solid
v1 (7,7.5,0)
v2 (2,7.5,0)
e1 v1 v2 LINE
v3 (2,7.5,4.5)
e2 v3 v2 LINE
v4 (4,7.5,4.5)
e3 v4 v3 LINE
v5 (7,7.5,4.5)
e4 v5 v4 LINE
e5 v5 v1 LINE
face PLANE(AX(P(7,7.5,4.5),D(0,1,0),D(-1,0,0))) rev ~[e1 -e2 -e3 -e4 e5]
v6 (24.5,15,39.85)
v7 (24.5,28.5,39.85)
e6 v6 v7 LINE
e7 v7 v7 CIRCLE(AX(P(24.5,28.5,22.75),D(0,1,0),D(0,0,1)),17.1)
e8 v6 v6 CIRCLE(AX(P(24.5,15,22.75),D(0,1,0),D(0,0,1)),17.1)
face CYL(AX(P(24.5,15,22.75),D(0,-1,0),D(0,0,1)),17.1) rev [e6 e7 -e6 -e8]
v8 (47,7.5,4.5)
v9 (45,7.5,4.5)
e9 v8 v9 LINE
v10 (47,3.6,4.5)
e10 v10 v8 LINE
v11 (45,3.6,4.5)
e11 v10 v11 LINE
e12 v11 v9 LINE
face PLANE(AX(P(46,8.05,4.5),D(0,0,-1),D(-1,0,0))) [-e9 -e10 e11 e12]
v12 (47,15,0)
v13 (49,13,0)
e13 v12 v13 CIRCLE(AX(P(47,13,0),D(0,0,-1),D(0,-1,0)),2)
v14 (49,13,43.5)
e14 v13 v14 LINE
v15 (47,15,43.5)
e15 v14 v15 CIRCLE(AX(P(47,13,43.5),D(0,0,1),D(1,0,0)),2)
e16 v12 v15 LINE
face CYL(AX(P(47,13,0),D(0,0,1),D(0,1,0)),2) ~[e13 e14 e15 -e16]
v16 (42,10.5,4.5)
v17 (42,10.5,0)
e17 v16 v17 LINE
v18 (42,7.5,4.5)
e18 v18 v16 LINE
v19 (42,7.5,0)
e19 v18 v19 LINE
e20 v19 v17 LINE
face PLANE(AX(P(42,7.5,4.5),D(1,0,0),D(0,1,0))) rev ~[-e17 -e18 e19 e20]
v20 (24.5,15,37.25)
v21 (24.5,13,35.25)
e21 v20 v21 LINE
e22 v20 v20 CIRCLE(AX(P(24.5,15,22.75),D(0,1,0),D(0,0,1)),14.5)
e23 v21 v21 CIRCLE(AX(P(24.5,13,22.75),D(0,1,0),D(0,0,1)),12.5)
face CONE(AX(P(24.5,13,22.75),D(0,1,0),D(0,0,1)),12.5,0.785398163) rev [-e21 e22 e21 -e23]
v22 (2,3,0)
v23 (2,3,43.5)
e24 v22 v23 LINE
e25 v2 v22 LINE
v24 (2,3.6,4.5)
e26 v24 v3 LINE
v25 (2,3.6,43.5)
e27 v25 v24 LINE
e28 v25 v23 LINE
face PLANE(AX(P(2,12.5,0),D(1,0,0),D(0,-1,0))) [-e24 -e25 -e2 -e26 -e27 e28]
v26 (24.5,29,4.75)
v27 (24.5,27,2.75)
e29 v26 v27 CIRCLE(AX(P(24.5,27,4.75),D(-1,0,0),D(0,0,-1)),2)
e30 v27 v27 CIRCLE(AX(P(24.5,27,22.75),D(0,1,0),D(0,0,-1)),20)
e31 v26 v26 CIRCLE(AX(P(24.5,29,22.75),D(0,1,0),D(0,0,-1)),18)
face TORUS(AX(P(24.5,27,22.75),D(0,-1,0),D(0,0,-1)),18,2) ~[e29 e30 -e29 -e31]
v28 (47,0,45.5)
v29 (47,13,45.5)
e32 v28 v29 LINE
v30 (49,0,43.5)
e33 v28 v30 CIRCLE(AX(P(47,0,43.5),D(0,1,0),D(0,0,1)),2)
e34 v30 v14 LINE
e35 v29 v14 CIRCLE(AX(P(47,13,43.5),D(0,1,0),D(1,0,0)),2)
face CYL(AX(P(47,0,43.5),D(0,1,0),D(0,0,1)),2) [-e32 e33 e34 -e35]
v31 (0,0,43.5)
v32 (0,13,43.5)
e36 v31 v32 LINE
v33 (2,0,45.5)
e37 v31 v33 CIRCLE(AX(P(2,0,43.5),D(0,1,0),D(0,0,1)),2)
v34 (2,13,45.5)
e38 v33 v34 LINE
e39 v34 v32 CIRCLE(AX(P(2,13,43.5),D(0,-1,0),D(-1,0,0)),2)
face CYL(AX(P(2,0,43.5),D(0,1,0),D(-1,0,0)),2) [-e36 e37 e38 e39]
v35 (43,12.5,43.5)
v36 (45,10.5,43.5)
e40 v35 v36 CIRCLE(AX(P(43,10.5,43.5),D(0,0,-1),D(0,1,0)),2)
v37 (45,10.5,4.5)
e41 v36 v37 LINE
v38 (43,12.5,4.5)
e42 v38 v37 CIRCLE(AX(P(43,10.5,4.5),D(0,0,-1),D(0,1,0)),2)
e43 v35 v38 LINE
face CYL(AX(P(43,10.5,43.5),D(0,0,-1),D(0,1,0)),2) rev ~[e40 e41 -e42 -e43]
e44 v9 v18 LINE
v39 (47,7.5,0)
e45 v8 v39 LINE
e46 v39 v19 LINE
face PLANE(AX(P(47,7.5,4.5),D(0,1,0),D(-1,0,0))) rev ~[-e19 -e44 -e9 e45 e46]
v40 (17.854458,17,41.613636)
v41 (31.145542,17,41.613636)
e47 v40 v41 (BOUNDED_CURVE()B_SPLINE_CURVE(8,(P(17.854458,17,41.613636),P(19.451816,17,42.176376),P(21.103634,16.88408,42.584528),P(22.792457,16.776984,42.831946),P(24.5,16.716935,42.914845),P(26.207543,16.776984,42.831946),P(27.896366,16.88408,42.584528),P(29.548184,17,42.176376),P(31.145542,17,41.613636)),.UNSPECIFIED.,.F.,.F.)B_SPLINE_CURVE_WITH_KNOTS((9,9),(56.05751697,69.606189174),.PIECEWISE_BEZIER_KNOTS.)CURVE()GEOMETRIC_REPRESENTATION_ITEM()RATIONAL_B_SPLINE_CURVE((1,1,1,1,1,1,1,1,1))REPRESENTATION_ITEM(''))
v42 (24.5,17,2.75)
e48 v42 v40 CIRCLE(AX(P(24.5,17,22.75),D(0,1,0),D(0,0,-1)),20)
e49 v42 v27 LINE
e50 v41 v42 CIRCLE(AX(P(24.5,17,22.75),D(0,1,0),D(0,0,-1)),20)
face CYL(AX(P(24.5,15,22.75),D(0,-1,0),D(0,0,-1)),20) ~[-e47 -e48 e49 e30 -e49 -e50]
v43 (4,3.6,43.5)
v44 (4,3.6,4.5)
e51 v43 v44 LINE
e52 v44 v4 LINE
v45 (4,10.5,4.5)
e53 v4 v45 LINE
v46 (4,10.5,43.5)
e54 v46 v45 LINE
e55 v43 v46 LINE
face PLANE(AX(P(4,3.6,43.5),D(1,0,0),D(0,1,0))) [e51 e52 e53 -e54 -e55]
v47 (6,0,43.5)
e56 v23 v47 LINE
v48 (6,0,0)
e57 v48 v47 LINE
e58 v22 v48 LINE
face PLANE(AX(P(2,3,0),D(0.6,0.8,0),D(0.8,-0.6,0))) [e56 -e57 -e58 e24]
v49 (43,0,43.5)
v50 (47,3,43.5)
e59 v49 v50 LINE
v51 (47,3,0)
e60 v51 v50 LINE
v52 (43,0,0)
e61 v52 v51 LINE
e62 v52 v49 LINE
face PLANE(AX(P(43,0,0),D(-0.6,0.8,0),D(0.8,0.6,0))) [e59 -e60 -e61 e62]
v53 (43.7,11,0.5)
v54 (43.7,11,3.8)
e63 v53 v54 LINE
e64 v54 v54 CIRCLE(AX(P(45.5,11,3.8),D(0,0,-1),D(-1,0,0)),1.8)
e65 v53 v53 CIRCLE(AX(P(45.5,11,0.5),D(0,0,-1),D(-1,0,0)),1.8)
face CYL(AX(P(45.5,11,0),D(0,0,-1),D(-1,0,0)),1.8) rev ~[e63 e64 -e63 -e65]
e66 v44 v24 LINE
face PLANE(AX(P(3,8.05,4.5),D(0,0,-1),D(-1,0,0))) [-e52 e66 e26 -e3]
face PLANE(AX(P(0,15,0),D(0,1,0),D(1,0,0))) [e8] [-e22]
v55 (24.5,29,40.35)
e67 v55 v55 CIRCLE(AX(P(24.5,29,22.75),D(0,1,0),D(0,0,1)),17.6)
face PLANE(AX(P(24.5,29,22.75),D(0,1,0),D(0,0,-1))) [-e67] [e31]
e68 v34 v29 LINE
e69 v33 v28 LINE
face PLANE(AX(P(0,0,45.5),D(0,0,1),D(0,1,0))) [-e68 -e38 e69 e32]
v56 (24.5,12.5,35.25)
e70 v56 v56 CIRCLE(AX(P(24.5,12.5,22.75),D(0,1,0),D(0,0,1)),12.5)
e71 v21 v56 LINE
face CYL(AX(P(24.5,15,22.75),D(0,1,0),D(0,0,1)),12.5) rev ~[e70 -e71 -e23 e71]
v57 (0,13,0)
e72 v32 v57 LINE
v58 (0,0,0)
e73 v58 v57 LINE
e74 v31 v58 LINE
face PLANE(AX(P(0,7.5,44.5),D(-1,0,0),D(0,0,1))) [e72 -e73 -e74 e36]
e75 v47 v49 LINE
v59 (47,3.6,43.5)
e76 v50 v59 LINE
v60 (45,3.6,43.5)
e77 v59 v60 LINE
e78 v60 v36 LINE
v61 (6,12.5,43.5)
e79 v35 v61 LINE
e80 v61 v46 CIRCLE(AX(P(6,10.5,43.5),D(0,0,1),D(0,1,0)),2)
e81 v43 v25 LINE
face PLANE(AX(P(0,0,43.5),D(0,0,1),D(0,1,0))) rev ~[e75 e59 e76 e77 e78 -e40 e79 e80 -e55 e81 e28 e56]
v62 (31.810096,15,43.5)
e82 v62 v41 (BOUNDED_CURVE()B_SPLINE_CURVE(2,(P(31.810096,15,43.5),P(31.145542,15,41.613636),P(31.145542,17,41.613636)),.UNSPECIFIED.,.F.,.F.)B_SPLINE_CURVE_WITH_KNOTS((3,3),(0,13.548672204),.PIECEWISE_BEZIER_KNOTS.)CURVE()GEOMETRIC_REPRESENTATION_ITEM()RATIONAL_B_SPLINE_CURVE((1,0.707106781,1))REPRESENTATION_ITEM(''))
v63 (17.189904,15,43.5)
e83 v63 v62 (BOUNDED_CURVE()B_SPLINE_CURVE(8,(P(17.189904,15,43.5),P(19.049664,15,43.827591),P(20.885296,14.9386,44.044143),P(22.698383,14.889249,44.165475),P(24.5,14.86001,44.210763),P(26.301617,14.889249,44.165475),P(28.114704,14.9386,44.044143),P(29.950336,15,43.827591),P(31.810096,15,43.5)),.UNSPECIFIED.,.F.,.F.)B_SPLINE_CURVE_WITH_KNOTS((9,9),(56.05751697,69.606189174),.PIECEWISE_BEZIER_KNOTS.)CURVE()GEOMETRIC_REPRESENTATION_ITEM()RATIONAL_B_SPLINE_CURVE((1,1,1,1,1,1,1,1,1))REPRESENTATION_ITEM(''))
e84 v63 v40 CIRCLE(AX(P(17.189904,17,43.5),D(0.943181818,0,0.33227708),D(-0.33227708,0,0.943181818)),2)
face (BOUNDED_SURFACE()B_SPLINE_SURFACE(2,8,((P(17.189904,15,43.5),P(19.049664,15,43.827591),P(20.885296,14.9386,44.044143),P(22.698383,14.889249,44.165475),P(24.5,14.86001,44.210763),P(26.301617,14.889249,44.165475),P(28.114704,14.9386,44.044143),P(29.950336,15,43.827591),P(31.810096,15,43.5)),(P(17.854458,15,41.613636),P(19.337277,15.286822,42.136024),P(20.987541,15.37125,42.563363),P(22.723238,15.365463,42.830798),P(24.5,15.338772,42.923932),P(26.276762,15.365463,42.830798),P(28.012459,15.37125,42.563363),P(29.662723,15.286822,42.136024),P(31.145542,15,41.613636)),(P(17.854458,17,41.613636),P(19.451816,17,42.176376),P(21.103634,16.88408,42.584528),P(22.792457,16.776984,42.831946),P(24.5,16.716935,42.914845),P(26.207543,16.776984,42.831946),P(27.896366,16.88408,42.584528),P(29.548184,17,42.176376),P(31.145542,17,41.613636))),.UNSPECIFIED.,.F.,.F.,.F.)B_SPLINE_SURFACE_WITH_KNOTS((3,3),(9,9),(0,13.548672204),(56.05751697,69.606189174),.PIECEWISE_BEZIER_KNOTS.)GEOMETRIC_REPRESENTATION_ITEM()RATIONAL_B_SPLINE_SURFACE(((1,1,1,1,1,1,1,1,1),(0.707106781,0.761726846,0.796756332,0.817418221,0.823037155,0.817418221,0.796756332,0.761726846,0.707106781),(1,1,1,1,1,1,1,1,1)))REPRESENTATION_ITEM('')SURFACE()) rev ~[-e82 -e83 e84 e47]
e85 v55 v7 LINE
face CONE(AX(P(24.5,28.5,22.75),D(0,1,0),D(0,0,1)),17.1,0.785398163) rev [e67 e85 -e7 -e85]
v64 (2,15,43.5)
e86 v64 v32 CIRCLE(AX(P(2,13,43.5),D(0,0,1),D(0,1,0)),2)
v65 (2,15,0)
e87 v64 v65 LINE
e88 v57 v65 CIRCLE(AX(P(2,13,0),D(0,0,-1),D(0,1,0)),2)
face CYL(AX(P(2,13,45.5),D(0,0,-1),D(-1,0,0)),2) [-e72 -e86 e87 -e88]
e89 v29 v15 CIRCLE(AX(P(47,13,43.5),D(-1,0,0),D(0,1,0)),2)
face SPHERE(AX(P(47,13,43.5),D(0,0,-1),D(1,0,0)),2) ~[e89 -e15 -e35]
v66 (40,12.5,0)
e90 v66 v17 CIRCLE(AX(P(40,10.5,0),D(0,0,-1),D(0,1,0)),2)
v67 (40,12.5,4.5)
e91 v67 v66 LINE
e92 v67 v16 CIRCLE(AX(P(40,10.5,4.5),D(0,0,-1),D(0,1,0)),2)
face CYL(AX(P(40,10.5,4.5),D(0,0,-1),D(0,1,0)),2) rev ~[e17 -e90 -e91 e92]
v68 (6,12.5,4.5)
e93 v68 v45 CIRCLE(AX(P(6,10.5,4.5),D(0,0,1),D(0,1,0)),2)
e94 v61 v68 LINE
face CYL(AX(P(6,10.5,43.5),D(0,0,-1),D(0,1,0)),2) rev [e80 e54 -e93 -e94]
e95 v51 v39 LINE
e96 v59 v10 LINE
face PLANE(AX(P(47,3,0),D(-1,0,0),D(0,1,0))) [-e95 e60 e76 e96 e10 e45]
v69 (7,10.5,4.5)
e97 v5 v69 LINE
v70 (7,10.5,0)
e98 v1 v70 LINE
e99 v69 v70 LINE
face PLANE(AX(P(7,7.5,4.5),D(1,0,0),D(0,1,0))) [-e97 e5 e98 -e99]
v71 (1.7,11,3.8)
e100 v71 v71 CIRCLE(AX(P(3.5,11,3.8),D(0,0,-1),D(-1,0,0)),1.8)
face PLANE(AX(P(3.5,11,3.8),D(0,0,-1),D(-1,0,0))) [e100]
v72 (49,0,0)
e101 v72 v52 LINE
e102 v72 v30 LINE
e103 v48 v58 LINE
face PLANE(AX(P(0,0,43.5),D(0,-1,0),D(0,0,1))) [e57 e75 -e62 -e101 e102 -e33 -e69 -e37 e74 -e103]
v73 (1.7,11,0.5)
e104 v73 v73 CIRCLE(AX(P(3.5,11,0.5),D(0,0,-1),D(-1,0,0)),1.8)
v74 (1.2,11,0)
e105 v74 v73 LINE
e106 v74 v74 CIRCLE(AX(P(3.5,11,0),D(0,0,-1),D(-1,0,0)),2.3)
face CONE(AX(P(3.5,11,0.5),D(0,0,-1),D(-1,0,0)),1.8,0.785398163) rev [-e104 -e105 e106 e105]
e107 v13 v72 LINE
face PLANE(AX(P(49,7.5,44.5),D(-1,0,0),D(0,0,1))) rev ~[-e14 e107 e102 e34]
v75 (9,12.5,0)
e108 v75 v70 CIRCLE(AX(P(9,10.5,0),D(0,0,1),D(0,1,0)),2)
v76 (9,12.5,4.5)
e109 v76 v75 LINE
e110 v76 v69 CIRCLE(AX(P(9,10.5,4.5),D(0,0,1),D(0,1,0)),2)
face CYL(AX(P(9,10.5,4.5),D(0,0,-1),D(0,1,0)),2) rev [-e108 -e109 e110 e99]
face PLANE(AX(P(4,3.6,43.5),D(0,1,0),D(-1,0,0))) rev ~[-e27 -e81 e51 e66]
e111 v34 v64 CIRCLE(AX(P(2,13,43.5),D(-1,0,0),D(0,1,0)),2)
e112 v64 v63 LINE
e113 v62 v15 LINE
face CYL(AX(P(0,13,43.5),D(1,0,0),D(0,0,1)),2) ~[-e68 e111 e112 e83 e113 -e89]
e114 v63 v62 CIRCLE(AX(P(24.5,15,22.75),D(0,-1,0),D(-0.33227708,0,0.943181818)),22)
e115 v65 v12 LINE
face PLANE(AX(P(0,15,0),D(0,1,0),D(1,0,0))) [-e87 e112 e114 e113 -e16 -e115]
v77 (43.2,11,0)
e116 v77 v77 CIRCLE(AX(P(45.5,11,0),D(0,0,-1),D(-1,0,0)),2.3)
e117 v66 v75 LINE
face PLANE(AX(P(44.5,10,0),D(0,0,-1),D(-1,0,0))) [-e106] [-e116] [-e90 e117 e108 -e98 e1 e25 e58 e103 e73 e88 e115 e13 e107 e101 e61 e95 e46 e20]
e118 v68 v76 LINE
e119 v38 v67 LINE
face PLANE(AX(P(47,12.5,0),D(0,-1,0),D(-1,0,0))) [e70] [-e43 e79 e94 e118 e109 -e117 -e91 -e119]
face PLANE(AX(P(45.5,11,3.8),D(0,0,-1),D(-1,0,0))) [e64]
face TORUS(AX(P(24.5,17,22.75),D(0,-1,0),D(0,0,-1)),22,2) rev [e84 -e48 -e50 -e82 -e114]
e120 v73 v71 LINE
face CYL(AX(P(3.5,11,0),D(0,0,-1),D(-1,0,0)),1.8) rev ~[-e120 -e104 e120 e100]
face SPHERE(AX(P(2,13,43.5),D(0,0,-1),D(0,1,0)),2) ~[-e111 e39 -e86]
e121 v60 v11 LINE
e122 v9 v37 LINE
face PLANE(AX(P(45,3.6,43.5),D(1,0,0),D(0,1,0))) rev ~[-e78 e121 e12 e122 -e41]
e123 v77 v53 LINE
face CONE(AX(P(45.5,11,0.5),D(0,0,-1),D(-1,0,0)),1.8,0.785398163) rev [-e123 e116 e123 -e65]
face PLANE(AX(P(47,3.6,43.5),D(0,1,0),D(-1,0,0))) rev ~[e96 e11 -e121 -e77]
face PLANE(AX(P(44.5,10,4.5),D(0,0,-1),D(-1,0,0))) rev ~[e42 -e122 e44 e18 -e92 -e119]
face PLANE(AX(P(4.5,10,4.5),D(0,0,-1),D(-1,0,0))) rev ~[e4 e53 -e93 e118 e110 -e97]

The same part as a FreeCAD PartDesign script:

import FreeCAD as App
import Part
import Sketcher


def edges_at(feature, points):
    """Names of the edges that pass closest to the given points."""
    edges = feature.Shape.Edges
    near = lambda p: min(range(len(edges)), key=lambda i: edges[i].distToShape(Part.Vertex(*p))[0])
    return sorted({f"Edge{near(p) + 1}" for p in points})


def add_polygon(sketch, points):
    """Adds a closed chain of lines whose ends are joined by coincident constraints."""
    first, n = sketch.GeometryCount, len(points)
    for a, b in zip(points, points[1:] + points[:1]):
        sketch.addGeometry(Part.LineSegment(App.Vector(*a, 0), App.Vector(*b, 0)), False)
    for i in range(n):
        sketch.addConstraint(Sketcher.Constraint("Coincident", first + i, 2, first + (i + 1) % n, 1))

doc = App.newDocument("Part")
body = doc.addObject("PartDesign::Body", "Body")

sketch1 = body.newObject("Sketcher::SketchObject", "Sketch")
sketch1.AttachmentSupport = (doc.getObject("XY_Plane"), [""])
sketch1.MapMode = "FlatFace"
add_polygon(sketch1, [(0, 0), (6, 0), (2, 3), (2, 12), (47, 12), (47, 3), (43, 0), (49, 0), (49, 15), (0, 15)])
sketch1.addConstraint([
    Sketcher.Constraint("Horizontal", 0),
    Sketcher.Constraint("Vertical", 2),
    Sketcher.Constraint("Horizontal", 3),
    Sketcher.Constraint("Vertical", 4),
    Sketcher.Constraint("Horizontal", 6),
    Sketcher.Constraint("Vertical", 7),
    Sketcher.Constraint("Horizontal", 8),
    Sketcher.Constraint("Vertical", 9),
    Sketcher.Constraint("Coincident", 9, 2, -1, 1),
    Sketcher.Constraint("PointOnObject", 5, 2, -1),
    Sketcher.Constraint("Horizontal", 1, 2, 4, 2),
    Sketcher.Constraint("Equal", 0, 6),
    Sketcher.Constraint("Equal", 1, 5),
    Sketcher.Constraint("DistanceX", 0, 1, 0, 2, 6.0),
    Sketcher.Constraint("DistanceX", 3, 1, 3, 2, 45.0),
    Sketcher.Constraint("DistanceX", 8, 2, 8, 1, 49.0),
    Sketcher.Constraint("DistanceY", 7, 1, 7, 2, 15.0),
    Sketcher.Constraint("Distance", 1, 5.0),
    Sketcher.Constraint("DistanceY", 2, 1, 2, 2, 9.5),
])
pad1 = body.newObject("PartDesign::Pad", "Pad")
pad1.Profile = sketch1
pad1.Length = 43.5

sketch2 = body.newObject("Sketcher::SketchObject", "Sketch001")
sketch2.AttachmentSupport = (doc.getObject("YZ_Plane"), [""])
sketch2.MapMode = "FlatFace"
add_polygon(sketch2, [(15, 43.5), (0, 43.5), (0, 45.5), (15, 45.5)])
sketch2.addConstraint([
    Sketcher.Constraint("Horizontal", 0),
    Sketcher.Constraint("Vertical", 1),
    Sketcher.Constraint("Horizontal", 2),
    Sketcher.Constraint("Vertical", 3),
    Sketcher.Constraint("PointOnObject", 0, 2, -2),
    Sketcher.Constraint("DistanceX", 0, 2, 0, 1, 15.0),
    Sketcher.Constraint("DistanceY", 1, 1, 1, 2, 2.0),
    Sketcher.Constraint("DistanceY", -1, 1, 0, 2, 43.5),
])
pad2 = body.newObject("PartDesign::Pad", "Pad001")
pad2.Profile = sketch2
pad2.Length = 49

sketch3 = body.newObject("Sketcher::SketchObject", "Sketch002")
sketch3.AttachmentSupport = (doc.getObject("XY_Plane"), [""])
sketch3.MapMode = "FlatFace"
sketch3.AttachmentOffset = App.Placement(App.Vector(0, 0, 43.5), App.Rotation())
add_polygon(sketch3, [(47, 12.5), (47, 3.6), (45, 3.6), (45, 12.5)])
add_polygon(sketch3, [(4, 12.5), (4, 3.6), (2, 3.6), (2, 12.5)])
sketch3.addConstraint([
    Sketcher.Constraint("Vertical", 0),
    Sketcher.Constraint("Horizontal", 1),
    Sketcher.Constraint("Vertical", 2),
    Sketcher.Constraint("Horizontal", 3),
    Sketcher.Constraint("Vertical", 4),
    Sketcher.Constraint("Horizontal", 5),
    Sketcher.Constraint("Vertical", 6),
    Sketcher.Constraint("Horizontal", 7),
    Sketcher.Constraint("Horizontal", 1, 2, 4, 2),
    Sketcher.Constraint("Horizontal", 3, 2, 6, 2),
    Sketcher.Constraint("Equal", 3, 5),
    Sketcher.Constraint("DistanceX", 1, 2, 1, 1, 2.0),
    Sketcher.Constraint("DistanceY", 0, 2, 0, 1, 8.9),
    Sketcher.Constraint("DistanceX", -1, 1, 0, 2, 47.0),
    Sketcher.Constraint("DistanceX", -1, 1, 4, 2, 4.0),
    Sketcher.Constraint("DistanceY", -1, 1, 0, 2, 3.6),
])
pad3 = body.newObject("PartDesign::Pad", "Pad002")
pad3.Profile = sketch3
pad3.Length = 39
pad3.Reversed = True

sketch4 = body.newObject("Sketcher::SketchObject", "Sketch003")
sketch4.AttachmentSupport = (doc.getObject("XY_Plane"), [""])
sketch4.MapMode = "FlatFace"
sketch4.AttachmentOffset = App.Placement(App.Vector(0, 0, 4.5), App.Rotation())
add_polygon(sketch4, [(47, 12), (47, 8), (42, 8), (42, 12)])
add_polygon(sketch4, [(7, 12), (7, 8), (2, 8), (2, 12)])
sketch4.addConstraint([
    Sketcher.Constraint("Vertical", 0),
    Sketcher.Constraint("Horizontal", 1),
    Sketcher.Constraint("Vertical", 2),
    Sketcher.Constraint("Horizontal", 3),
    Sketcher.Constraint("Vertical", 4),
    Sketcher.Constraint("Horizontal", 5),
    Sketcher.Constraint("Vertical", 6),
    Sketcher.Constraint("Horizontal", 7),
    Sketcher.Constraint("Horizontal", 1, 2, 4, 2),
    Sketcher.Constraint("Horizontal", 3, 2, 6, 2),
    Sketcher.Constraint("Equal", 3, 5),
    Sketcher.Constraint("Equal", 7, 0),
    Sketcher.Constraint("DistanceX", 1, 2, 1, 1, 5.0),
    Sketcher.Constraint("DistanceX", -1, 1, 0, 2, 47.0),
    Sketcher.Constraint("DistanceX", -1, 1, 4, 2, 7.0),
    Sketcher.Constraint("DistanceY", -1, 1, 0, 2, 7.5),
])
pad4 = body.newObject("PartDesign::Pad", "Pad003")
pad4.Profile = sketch4
pad4.Length = 4.5
pad4.Reversed = True
doc.recompute()

fillet = body.newObject("PartDesign::Fillet", "Fillet")
fillet.Base = (pad4, edges_at(pad4, [(45, 12.5, 24), (4, 12.5, 24)]))
fillet.Radius = 2
doc.recompute()

fillet2 = body.newObject("PartDesign::Fillet", "Fillet001")
fillet2.Base = (fillet, edges_at(fillet, [(42, 12.5, 2.25), (7, 12.5, 2.25)]))
fillet2.Radius = 2
doc.recompute()

fillet3 = body.newObject("PartDesign::Fillet", "Fillet002")
fillet3.Base = (fillet2, edges_at(fillet2, [
    (0, 15, 22.75),
    (49, 15, 22.75),
    (49, 7.5, 45.5),
    (24.5, 15, 45.5),
    (0, 7.5, 45.5),
]))
fillet3.Radius = 2

sketch5 = body.newObject("Sketcher::SketchObject", "Sketch004")
sketch5.AttachmentSupport = (doc.getObject("XZ_Plane"), [""])
sketch5.MapMode = "FlatFace"
sketch5.AttachmentOffset = App.Placement(App.Vector(0, 0, -15), App.Rotation())
sketch5.addGeometry(Part.Circle(App.Vector(24, 23, 0), App.Vector(0, 0, 1), 12), False)
sketch5.addConstraint([
    Sketcher.Constraint("Diameter", 0, 25.0),
    Sketcher.Constraint("DistanceX", -1, 1, 0, 3, 24.5),
    Sketcher.Constraint("DistanceY", -1, 1, 0, 3, 22.75),
])
pocket1 = body.newObject("PartDesign::Pocket", "Pocket")
pocket1.Profile = sketch5
pocket1.Length = 2.5
pocket1.Reversed = True
doc.recompute()

chamfer = body.newObject("PartDesign::Chamfer", "Chamfer")
chamfer.Base = (pocket1, edges_at(pocket1, [(24.5, 15, 10.25)]))
chamfer.Size = 2

sketch6 = body.newObject("Sketcher::SketchObject", "Sketch005")
sketch6.AttachmentSupport = (doc.getObject("XY_Plane"), [""])
sketch6.MapMode = "FlatFace"
sketch6.addGeometry([
    Part.Circle(App.Vector(45.5, 11, 0), App.Vector(0, 0, 1), 1.8),
    Part.Circle(App.Vector(3.5, 11, 0), App.Vector(0, 0, 1), 1.8),
], False)
sketch6.addConstraint([
    Sketcher.Constraint("Equal", 0, 1),
    Sketcher.Constraint("Horizontal", 0, 3, 1, 3),
    Sketcher.Constraint("Diameter", 0, 3.6),
    Sketcher.Constraint("DistanceY", -1, 1, 0, 3, 11.0),
    Sketcher.Constraint("DistanceX", 1, 3, 0, 3, 42.0),
    Sketcher.Constraint("DistanceX", -1, 1, 0, 3, 45.5),
])
pocket2 = body.newObject("PartDesign::Pocket", "Pocket001")
pocket2.Profile = sketch6
pocket2.Length = 3.8
pocket2.Reversed = True
doc.recompute()

chamfer2 = body.newObject("PartDesign::Chamfer", "Chamfer001")
chamfer2.Base = (pocket2, edges_at(pocket2, [(47.3, 11, 0), (5.3, 11, 0)]))
chamfer2.Size = 0.5

sketch7 = body.newObject("Sketcher::SketchObject", "Sketch006")
sketch7.AttachmentSupport = (doc.getObject("XZ_Plane"), [""])
sketch7.MapMode = "FlatFace"
sketch7.AttachmentOffset = App.Placement(App.Vector(0, 0, -15), App.Rotation())
sketch7.addGeometry([
    Part.Circle(App.Vector(24, 23, 0), App.Vector(0, 0, 1), 20),
    Part.Circle(App.Vector(24, 23, 0), App.Vector(0, 0, 1), 17),
], False)
sketch7.addConstraint([
    Sketcher.Constraint("Coincident", 1, 3, 0, 3),
    Sketcher.Constraint("Diameter", 0, 40.0),
    Sketcher.Constraint("Diameter", 1, 34.2),
    Sketcher.Constraint("DistanceX", -1, 1, 0, 3, 24.5),
    Sketcher.Constraint("DistanceY", -1, 1, 0, 3, 22.75),
])
pad5 = body.newObject("PartDesign::Pad", "Pad004")
pad5.Profile = sketch7
pad5.Length = 14
pad5.Reversed = True
doc.recompute()

fillet4 = body.newObject("PartDesign::Fillet", "Fillet003")
fillet4.Base = (pad5, edges_at(pad5, [(24.5, 15, 42.75)]))
fillet4.Radius = 2
doc.recompute()

fillet5 = body.newObject("PartDesign::Fillet", "Fillet004")
fillet5.Base = (fillet4, edges_at(fillet4, [(24.5, 29, 42.75)]))
fillet5.Radius = 2
doc.recompute()

chamfer3 = body.newObject("PartDesign::Chamfer", "Chamfer002")
chamfer3.Base = (fillet5, edges_at(fillet5, [(24.5, 29, 5.65)]))
chamfer3.Size = 0.5

doc.recompute()
